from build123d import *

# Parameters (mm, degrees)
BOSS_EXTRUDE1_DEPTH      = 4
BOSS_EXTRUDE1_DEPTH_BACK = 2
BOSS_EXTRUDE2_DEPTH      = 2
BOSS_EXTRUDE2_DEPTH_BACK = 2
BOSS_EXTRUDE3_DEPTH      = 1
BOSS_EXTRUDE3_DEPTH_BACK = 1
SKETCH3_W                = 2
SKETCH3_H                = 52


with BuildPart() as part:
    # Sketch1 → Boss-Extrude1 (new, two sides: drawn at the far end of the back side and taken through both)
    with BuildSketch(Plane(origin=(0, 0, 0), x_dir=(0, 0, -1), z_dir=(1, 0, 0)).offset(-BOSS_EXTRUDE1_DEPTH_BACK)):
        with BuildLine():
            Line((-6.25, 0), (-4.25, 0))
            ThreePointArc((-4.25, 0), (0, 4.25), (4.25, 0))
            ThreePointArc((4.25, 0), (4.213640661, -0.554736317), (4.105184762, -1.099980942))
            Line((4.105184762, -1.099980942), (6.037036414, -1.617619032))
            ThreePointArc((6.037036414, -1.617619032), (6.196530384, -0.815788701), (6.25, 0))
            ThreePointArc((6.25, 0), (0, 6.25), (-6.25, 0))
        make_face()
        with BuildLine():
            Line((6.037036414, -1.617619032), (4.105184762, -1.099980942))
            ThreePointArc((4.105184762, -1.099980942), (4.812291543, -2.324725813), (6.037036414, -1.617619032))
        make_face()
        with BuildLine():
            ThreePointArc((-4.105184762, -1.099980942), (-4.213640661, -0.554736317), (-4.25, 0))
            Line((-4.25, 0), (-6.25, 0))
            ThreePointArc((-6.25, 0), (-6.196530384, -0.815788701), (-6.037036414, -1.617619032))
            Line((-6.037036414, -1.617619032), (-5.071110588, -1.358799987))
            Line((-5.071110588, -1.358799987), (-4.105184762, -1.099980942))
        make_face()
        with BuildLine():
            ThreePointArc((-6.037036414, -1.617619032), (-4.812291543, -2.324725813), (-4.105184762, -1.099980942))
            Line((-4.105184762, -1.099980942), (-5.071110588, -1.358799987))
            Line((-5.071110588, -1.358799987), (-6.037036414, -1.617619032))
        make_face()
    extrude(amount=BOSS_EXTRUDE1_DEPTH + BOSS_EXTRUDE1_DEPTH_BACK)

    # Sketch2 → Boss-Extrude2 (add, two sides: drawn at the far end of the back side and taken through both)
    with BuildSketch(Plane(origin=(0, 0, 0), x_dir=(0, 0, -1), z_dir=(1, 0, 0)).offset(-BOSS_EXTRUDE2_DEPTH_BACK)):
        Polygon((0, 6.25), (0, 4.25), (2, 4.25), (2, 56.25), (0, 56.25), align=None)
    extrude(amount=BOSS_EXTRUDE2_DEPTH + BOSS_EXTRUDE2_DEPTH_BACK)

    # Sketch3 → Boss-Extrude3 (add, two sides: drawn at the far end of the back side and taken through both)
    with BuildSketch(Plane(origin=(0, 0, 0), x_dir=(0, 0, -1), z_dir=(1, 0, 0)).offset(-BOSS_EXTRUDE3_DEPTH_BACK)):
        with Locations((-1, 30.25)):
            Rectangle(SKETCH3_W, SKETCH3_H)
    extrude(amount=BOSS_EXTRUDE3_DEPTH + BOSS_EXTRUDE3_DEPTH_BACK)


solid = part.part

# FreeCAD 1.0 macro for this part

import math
import FreeCAD as App
import Part
import Sketcher

V = App.Vector


def add_polygon(sketch, points):
    """Adds a closed chain of lines whose ends are joined by coincident constraints."""
    first, n = sketch.GeometryCount, len(points)
    for a, b in zip(points, points[1:] + points[:1]):
        sketch.addGeometry(Part.LineSegment(App.Vector(*a, 0), App.Vector(*b, 0)), False)
    for i in range(n):
        sketch.addConstraint(Sketcher.Constraint("Coincident", first + i, 2, first + (i + 1) % n, 1))

doc = App.newDocument("Part")
params = doc.addObject("Spreadsheet::Sheet", "Params")
for row, (alias, value) in enumerate([
    ("sketch1_radius", "1 mm"),
    ("sketch1_radius2", "4.25 mm"),
    ("pad1_length", "4 mm"),
    ("pad1_length2", "2 mm"),
    ("sketch2_width", "52 mm"),
    ("sketch2_height", "2 mm"),
    ("pad2_length", "2 mm"),
    ("pad2_length2", "2 mm"),
    ("sketch3_width", "52 mm"),
    ("sketch3_height", "2 mm"),
    ("pad3_length", "1 mm"),
    ("pad3_length2", "1 mm"),
], start=1):
    params.set(f"A{row}", alias)
    params.set(f"B{row}", "=" + value)
    params.setAlias(f"B{row}", alias)

body = doc.addObject("PartDesign::Body", "Body")

sketch1 = body.newObject("Sketcher::SketchObject", "Sketch")
sketch1.AttachmentSupport = (doc.getObject("YZ_Plane"), [""])
sketch1.MapMode = "FlatFace"
sketch1.addGeometry(Part.ArcOfCircle(Part.Circle(V(0, 0, 0), V(0, 0, 1), 4.2), math.radians(-90), math.radians(90)), False)
sketch1.addGeometry(Part.ArcOfCircle(Part.Circle(V(0, 0, 0), V(0, 0, 1), 4.3), math.radians(-105), math.radians(-90)), False)
sketch1.addGeometry(Part.ArcOfCircle(Part.Circle(V(-1.4, -5.1, 0), V(0, 0, 1), 1), math.radians(75), math.radians(255)), False)
sketch1.addGeometry(Part.ArcOfCircle(Part.Circle(V(0, 0, 0), V(0, 0, 1), 6.2), math.radians(-105), math.radians(-90)), False)
sketch1.addGeometry(Part.ArcOfCircle(Part.Circle(V(0, 0, 0), V(0, 0, 1), 6.2), math.radians(-90), math.radians(90)), False)
sketch1.addGeometry(Part.ArcOfCircle(Part.Circle(V(0, 0, 0), V(0, 0, 1), 6.2), math.radians(90), math.radians(105)), False)
sketch1.addGeometry(Part.ArcOfCircle(Part.Circle(V(-1.4, 5.1, 0), V(0, 0, 1), 1), math.radians(105), math.radians(285)), False)
sketch1.addGeometry(Part.ArcOfCircle(Part.Circle(V(0, 0, 0), V(0, 0, 1), 4.3), math.radians(90), math.radians(105)), False)
sketch1.addConstraint(Sketcher.Constraint("Tangent", 0, 1, 1, 2))
sketch1.addConstraint(Sketcher.Constraint("Tangent", 1, 1, 2, 1))
sketch1.addConstraint(Sketcher.Constraint("Tangent", 2, 2, 3, 1))
sketch1.addConstraint(Sketcher.Constraint("Tangent", 3, 2, 4, 1))
sketch1.addConstraint(Sketcher.Constraint("Tangent", 4, 2, 5, 1))
sketch1.addConstraint(Sketcher.Constraint("Tangent", 5, 2, 6, 1))
sketch1.addConstraint(Sketcher.Constraint("Tangent", 6, 2, 7, 2))
sketch1.addConstraint(Sketcher.Constraint("Tangent", 7, 1, 0, 2))
sketch1.addConstraint(Sketcher.Constraint("Coincident", 0, 3, -1, 1))
sketch1.addConstraint(Sketcher.Constraint("Coincident", 3, 3, -1, 1))
sketch1.addConstraint(Sketcher.Constraint("Equal", 0, 1))
sketch1.addConstraint(Sketcher.Constraint("Equal", 3, 4))
sketch1.addConstraint(Sketcher.Constraint("Equal", 4, 5))
sketch1.addConstraint(Sketcher.Constraint("Equal", 2, 6))
sketch1.addConstraint(Sketcher.Constraint("PointOnObject", 0, 1, -2))
sketch1.addConstraint(Sketcher.Constraint("PointOnObject", 3, 2, -2))
sketch1.addConstraint(Sketcher.Constraint("PointOnObject", 4, 2, -2))
sketch1.addConstraint(Sketcher.Constraint("PointOnObject", 7, 1, -2))
sketch1.addConstraint(Sketcher.Constraint("Vertical", 2, 3, 6, 3))
sketch1.addConstraint(Sketcher.Constraint("Radius", 2, 1.0))
sketch1.addConstraint(Sketcher.Constraint("Radius", 0, 4.25))
sketch1.addConstraint(Sketcher.Constraint("DistanceX", 2, 3, -1, 1, 1.3588))
sketch1.setExpression("Constraints[19]", "Params.sketch1_radius")
sketch1.setExpression("Constraints[20]", "Params.sketch1_radius2")
pad1 = body.newObject("PartDesign::Pad", "Pad")
pad1.Profile = sketch1
pad1.Type = "TwoLengths"
pad1.setExpression("Length", "Params.pad1_length")
pad1.setExpression("Length2", "Params.pad1_length2")

sketch2 = body.newObject("Sketcher::SketchObject", "Sketch001")
sketch2.AttachmentSupport = (doc.getObject("YZ_Plane"), [""])
sketch2.MapMode = "FlatFace"
add_polygon(sketch2, [(4.2, 0), (4.2, -2), (56.2, -2), (56.2, 0)])
sketch2.addConstraint(Sketcher.Constraint("Vertical", 0))
sketch2.addConstraint(Sketcher.Constraint("Horizontal", 1))
sketch2.addConstraint(Sketcher.Constraint("Vertical", 2))
sketch2.addConstraint(Sketcher.Constraint("Horizontal", 3))
sketch2.addConstraint(Sketcher.Constraint("PointOnObject", 2, 2, -1))
sketch2.addConstraint(Sketcher.Constraint("DistanceX", 1, 1, 1, 2, 52.0))
sketch2.addConstraint(Sketcher.Constraint("DistanceY", 0, 2, 0, 1, 2.0))
sketch2.addConstraint(Sketcher.Constraint("DistanceX", -1, 1, 0, 2, 4.25))
sketch2.setExpression("Constraints[9]", "Params.sketch2_width")
sketch2.setExpression("Constraints[10]", "Params.sketch2_height")
pad2 = body.newObject("PartDesign::Pad", "Pad001")
pad2.Profile = sketch2
pad2.Type = "TwoLengths"
pad2.setExpression("Length", "Params.pad2_length")
pad2.setExpression("Length2", "Params.pad2_length2")

sketch3 = body.newObject("Sketcher::SketchObject", "Sketch002")
sketch3.AttachmentSupport = (doc.getObject("YZ_Plane"), [""])
sketch3.MapMode = "FlatFace"
add_polygon(sketch3, [(56.2, 2), (4.2, 2), (4.2, 0), (56.2, 0)])
sketch3.addConstraint(Sketcher.Constraint("Horizontal", 0))
sketch3.addConstraint(Sketcher.Constraint("Vertical", 1))
sketch3.addConstraint(Sketcher.Constraint("Horizontal", 2))
sketch3.addConstraint(Sketcher.Constraint("Vertical", 3))
sketch3.addConstraint(Sketcher.Constraint("PointOnObject", 1, 2, -1))
sketch3.addConstraint(Sketcher.Constraint("DistanceX", 0, 2, 0, 1, 52.0))
sketch3.addConstraint(Sketcher.Constraint("DistanceY", 1, 2, 1, 1, 2.0))
sketch3.addConstraint(Sketcher.Constraint("DistanceX", -1, 1, 0, 2, 4.25))
sketch3.setExpression("Constraints[9]", "Params.sketch3_width")
sketch3.setExpression("Constraints[10]", "Params.sketch3_height")
pad3 = body.newObject("PartDesign::Pad", "Pad002")
pad3.Profile = sketch3
pad3.Type = "TwoLengths"
pad3.setExpression("Length", "Params.pad3_length")
pad3.setExpression("Length2", "Params.pad3_length2")

doc.recompute()
